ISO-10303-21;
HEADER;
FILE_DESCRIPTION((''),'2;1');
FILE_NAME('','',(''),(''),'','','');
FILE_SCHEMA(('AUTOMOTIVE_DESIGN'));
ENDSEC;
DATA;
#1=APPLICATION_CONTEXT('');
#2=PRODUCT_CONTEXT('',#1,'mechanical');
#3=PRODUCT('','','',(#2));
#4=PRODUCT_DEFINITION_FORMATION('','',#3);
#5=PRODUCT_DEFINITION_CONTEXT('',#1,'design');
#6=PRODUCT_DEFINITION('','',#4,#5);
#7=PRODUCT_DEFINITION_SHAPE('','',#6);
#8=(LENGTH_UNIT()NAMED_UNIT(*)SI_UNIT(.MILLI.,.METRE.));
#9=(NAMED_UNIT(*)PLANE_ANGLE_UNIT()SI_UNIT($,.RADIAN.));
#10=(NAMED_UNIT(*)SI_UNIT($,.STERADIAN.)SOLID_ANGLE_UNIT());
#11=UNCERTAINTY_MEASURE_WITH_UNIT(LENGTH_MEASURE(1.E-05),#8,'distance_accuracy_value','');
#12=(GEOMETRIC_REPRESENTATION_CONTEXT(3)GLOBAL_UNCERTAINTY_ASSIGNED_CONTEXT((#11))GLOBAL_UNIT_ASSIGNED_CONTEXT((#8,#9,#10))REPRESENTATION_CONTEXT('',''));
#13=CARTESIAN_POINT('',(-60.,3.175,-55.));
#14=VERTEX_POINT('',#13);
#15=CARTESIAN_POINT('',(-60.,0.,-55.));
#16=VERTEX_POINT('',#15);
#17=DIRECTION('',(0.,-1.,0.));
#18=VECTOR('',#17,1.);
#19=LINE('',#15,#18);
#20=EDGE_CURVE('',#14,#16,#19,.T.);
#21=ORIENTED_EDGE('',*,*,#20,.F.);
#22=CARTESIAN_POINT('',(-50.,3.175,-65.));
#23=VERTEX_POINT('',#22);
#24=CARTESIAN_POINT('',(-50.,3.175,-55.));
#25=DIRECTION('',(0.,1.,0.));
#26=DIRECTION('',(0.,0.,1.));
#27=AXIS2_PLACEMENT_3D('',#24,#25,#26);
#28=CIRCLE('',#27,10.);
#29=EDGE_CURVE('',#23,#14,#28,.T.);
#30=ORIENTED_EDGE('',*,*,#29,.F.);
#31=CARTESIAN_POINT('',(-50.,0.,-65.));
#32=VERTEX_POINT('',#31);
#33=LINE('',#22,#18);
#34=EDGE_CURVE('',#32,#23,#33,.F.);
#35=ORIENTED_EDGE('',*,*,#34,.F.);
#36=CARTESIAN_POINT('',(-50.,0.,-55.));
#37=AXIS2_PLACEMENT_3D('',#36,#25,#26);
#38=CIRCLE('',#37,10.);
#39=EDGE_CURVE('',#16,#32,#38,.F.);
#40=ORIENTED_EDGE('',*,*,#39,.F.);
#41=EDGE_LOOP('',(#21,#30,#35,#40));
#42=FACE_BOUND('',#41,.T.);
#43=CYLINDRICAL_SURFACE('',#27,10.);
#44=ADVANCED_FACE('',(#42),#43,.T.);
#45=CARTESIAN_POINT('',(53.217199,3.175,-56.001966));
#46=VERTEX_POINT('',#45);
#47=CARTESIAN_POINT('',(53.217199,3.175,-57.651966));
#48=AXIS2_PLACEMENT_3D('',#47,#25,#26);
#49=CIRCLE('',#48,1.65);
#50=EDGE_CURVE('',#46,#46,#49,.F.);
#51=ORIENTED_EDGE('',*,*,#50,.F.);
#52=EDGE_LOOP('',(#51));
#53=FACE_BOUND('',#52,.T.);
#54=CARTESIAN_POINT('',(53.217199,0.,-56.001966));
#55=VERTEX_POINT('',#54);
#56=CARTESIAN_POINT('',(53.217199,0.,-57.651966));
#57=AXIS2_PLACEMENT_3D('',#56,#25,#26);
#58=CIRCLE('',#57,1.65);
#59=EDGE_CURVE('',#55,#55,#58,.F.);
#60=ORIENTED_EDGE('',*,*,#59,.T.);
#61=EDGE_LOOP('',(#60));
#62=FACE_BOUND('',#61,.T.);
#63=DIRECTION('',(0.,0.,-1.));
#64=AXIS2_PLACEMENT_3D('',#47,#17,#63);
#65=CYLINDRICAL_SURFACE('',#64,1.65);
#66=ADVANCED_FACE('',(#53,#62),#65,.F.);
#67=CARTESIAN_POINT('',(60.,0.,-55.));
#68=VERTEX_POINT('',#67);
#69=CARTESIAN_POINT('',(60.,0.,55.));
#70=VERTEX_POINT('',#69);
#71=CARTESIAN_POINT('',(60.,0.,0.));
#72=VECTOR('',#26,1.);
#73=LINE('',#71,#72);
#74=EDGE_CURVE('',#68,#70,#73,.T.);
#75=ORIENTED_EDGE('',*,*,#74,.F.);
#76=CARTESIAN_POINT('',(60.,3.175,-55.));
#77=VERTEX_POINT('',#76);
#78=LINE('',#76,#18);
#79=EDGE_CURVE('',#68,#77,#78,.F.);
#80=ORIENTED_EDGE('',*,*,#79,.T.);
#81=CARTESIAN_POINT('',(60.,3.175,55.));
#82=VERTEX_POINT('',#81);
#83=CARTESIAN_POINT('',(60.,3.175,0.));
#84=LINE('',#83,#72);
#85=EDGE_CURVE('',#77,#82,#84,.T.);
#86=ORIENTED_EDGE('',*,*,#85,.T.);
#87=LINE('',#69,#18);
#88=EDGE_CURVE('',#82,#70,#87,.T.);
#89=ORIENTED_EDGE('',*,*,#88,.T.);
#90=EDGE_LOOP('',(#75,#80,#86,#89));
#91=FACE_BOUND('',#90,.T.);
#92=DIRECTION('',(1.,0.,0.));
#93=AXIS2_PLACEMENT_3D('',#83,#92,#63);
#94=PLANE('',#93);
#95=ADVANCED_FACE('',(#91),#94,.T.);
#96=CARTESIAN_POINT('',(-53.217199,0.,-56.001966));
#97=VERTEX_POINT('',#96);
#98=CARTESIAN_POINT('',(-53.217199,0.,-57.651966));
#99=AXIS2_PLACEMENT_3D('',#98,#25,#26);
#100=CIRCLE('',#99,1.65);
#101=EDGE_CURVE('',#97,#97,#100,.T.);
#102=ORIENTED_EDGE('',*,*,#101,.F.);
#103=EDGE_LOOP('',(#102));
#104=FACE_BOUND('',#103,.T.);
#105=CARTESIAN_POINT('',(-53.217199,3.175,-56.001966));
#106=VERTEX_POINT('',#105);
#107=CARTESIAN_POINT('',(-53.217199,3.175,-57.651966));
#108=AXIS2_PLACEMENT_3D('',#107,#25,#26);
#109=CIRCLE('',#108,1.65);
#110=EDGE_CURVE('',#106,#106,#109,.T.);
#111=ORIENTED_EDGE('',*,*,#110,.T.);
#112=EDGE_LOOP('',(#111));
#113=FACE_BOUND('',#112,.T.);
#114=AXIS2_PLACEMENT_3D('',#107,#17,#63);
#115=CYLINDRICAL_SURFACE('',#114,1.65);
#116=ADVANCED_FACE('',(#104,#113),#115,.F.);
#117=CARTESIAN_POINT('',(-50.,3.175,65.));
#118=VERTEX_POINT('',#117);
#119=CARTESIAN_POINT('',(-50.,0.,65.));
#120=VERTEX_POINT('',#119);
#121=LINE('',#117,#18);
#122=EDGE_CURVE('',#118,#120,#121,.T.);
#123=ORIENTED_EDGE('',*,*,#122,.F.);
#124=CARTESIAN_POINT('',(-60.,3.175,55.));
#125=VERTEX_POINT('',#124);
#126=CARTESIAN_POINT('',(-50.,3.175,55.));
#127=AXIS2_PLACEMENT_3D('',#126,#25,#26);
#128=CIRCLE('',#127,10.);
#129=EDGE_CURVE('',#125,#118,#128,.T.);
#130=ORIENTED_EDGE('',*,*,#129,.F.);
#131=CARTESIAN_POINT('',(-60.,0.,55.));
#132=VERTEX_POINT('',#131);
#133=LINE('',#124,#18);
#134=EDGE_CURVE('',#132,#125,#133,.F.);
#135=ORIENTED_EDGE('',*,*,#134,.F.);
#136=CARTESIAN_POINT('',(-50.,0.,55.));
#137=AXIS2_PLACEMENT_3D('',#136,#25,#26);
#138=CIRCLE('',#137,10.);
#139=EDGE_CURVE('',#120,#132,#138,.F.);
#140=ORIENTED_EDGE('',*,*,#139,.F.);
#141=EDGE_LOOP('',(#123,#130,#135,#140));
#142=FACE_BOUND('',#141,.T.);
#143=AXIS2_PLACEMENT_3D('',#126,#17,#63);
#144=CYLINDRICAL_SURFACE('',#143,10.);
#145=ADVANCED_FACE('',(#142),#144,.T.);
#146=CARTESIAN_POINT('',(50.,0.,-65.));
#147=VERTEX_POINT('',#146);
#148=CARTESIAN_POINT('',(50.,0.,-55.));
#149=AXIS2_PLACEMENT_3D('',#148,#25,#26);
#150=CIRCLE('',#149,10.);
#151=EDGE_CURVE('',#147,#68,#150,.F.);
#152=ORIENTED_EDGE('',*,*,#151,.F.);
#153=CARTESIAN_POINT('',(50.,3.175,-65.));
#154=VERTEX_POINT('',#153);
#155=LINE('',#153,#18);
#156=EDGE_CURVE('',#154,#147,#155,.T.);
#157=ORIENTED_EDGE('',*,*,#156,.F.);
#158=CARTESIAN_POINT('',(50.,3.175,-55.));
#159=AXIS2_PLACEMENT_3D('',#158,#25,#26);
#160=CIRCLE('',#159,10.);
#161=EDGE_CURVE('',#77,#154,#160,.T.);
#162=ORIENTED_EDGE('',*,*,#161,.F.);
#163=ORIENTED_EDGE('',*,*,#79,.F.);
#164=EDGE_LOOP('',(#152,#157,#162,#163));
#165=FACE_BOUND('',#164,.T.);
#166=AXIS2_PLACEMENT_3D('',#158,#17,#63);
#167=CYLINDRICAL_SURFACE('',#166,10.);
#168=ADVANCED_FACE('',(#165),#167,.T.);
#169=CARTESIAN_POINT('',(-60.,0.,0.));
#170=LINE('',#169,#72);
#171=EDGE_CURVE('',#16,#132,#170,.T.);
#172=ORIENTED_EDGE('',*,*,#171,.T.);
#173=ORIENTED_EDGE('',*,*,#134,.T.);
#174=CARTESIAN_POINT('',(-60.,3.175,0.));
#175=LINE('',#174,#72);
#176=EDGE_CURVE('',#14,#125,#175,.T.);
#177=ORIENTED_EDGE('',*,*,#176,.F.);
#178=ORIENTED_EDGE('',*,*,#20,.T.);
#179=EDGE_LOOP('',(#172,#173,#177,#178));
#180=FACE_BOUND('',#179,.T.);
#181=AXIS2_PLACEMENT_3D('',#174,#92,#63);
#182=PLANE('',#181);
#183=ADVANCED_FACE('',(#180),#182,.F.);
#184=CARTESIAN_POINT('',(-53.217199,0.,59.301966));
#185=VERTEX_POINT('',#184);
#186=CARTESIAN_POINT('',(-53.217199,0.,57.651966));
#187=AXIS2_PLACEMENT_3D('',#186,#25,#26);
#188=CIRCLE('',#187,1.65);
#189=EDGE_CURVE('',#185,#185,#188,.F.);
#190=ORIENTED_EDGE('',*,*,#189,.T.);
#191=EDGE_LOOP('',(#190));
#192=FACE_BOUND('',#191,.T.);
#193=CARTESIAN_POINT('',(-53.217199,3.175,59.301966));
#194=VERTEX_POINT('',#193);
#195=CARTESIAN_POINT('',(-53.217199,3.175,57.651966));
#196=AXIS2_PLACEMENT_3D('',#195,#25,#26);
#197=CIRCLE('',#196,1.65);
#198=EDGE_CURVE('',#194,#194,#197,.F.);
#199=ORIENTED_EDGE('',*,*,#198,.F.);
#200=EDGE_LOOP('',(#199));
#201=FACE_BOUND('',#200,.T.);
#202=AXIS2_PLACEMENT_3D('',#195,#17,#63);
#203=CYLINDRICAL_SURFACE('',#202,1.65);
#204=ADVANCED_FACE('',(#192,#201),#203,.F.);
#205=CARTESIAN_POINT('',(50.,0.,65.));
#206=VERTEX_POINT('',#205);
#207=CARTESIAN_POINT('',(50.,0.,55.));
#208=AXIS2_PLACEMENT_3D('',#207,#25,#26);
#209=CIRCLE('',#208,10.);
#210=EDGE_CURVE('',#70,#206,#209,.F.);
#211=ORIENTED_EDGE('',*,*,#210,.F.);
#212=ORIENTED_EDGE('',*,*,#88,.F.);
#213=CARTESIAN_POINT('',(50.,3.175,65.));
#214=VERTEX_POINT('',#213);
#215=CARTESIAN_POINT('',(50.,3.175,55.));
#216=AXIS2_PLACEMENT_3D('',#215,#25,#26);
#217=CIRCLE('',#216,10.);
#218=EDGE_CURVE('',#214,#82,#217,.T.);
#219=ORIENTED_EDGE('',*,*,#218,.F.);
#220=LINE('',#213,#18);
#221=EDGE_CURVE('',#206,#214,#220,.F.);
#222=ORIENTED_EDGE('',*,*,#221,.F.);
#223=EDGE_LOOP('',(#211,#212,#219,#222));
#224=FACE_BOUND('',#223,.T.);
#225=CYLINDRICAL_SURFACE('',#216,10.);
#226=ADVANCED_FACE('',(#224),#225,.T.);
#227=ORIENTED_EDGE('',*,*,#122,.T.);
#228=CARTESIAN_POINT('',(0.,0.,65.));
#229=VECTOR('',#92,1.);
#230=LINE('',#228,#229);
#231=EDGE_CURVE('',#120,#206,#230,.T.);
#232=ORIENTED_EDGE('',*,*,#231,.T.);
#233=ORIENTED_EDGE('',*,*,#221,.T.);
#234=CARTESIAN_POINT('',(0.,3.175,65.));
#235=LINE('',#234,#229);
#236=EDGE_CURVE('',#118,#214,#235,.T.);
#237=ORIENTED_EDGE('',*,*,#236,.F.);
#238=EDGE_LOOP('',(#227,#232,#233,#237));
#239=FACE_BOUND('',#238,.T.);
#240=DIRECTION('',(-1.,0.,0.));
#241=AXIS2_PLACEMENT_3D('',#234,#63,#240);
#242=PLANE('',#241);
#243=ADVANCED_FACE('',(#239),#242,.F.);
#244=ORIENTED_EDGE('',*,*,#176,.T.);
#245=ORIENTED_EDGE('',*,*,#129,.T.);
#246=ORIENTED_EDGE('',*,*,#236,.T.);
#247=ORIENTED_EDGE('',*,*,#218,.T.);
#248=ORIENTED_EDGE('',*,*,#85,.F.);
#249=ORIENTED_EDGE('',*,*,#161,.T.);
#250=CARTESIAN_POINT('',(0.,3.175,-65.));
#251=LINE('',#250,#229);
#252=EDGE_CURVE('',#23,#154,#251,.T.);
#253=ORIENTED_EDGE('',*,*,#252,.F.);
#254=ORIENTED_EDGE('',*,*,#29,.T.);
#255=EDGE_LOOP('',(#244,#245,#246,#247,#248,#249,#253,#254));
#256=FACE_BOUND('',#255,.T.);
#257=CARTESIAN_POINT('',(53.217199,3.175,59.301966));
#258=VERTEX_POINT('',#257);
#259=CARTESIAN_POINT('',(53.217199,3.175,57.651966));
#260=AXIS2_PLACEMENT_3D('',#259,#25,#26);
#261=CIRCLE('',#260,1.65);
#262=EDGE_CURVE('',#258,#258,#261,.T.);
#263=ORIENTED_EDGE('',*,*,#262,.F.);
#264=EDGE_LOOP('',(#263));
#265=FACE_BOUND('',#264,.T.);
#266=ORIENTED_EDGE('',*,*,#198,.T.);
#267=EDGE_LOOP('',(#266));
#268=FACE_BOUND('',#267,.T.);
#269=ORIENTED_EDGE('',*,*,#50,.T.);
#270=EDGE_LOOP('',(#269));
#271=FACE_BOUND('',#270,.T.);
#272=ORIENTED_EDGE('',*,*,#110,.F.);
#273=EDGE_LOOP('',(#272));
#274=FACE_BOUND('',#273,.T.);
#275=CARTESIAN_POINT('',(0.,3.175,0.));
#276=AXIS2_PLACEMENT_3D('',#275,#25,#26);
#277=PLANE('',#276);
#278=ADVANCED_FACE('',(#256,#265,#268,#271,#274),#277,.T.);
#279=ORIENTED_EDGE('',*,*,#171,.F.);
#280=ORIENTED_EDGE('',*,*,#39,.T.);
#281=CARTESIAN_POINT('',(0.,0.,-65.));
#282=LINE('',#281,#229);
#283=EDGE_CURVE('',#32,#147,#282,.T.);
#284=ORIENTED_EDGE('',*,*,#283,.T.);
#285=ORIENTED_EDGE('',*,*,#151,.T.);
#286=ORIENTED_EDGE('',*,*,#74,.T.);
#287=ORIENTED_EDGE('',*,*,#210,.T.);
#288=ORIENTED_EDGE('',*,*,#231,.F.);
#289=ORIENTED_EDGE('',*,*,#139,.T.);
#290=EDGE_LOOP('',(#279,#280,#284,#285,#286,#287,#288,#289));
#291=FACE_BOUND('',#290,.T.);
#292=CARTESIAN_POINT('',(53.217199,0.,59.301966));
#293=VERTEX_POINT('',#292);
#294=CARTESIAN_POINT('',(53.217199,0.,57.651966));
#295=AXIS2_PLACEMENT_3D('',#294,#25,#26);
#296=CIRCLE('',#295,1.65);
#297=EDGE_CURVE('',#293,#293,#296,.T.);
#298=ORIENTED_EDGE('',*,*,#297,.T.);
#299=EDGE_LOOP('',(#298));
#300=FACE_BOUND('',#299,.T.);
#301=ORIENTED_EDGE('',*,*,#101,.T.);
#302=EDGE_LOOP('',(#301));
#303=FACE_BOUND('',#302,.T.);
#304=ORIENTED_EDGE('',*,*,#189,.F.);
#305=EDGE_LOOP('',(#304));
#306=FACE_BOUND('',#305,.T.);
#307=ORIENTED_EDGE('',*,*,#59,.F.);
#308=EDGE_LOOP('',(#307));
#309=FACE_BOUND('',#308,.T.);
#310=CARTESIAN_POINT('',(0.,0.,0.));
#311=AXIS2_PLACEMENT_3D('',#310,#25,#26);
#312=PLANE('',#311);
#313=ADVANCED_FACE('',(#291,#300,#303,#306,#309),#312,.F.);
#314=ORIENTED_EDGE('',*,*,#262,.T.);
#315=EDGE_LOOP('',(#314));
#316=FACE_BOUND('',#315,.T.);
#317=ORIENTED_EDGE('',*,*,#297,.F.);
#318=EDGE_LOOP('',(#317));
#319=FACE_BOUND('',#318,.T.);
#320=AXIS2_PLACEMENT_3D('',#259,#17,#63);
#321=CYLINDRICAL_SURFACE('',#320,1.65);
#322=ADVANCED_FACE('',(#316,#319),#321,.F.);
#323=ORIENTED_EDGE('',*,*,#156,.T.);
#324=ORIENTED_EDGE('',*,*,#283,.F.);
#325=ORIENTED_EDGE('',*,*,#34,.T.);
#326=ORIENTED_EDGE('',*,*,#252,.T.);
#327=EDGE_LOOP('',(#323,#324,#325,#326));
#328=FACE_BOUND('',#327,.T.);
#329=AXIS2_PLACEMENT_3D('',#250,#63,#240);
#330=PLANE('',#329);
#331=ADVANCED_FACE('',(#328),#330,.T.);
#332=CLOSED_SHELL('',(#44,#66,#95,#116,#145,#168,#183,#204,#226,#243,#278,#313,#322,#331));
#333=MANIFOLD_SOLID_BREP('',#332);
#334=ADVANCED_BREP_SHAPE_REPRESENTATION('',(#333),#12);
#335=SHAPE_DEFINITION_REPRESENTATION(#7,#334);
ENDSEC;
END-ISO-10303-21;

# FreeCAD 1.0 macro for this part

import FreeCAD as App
import Part
import Sketcher

V = App.Vector
Q = App.Units.Quantity


def edges_at(feature, points):
    """Names of the edges that pass closest to the given points."""
    edges = feature.Shape.Edges
    near = lambda p: min(range(len(edges)), key=lambda i: edges[i].distToShape(Part.Vertex(*p))[0])
    return sorted({f"Edge{near(p) + 1}" for p in points})


def add_polygon(sketch, points):
    """Adds a closed chain of lines whose ends are joined by coincident constraints."""
    first, n = sketch.GeometryCount, len(points)
    for a, b in zip(points, points[1:] + points[:1]):
        sketch.addGeometry(Part.LineSegment(App.Vector(*a, 0), App.Vector(*b, 0)), False)
    for i in range(n):
        sketch.addConstraint(Sketcher.Constraint("Coincident", first + i, 2, first + (i + 1) % n, 1))

doc = App.newDocument("Part")
body = doc.addObject("PartDesign::Body", "Body")

sketch1 = doc.addObject("Sketcher::SketchObject", "Sketch")
body.addObject(sketch1)
sketch1.AttachmentSupport = (doc.XZ_Plane, [""])
sketch1.MapMode = "FlatFace"
add_polygon(sketch1, [(-60, -65), (-60, 65), (60, 65), (60, -65)])
sketch1.addGeometry(Part.Circle(V(-53.217199, 57.651966, 0), V(0, 0, 1), 1.65), False)
sketch1.addGeometry(Part.Circle(V(53.217199, 57.651966, 0), V(0, 0, 1), 1.65), False)
sketch1.addGeometry(Part.Circle(V(-53.217199, -57.651966, 0), V(0, 0, 1), 1.65), False)
sketch1.addGeometry(Part.Circle(V(53.217199, -57.651966, 0), V(0, 0, 1), 1.65), False)
sketch1.addConstraint([
    Sketcher.Constraint("Vertical", 0),
    Sketcher.Constraint("Horizontal", 1),
    Sketcher.Constraint("Vertical", 2),
    Sketcher.Constraint("Horizontal", 3),
    Sketcher.Constraint("Equal", 4, 5),
    Sketcher.Constraint("Equal", 5, 6),
    Sketcher.Constraint("Equal", 6, 7),
    Sketcher.Constraint("Symmetric", 5, 3, 6, 3, -1, 1),
    Sketcher.Constraint("Symmetric", 4, 3, 7, 3, -1, 1),
    Sketcher.Constraint("Symmetric", 0, 2, 2, 2, -1, 1),
    Sketcher.Constraint("Symmetric", 4, 3, 5, 3, -2),
    Sketcher.Constraint("Diameter", 4, Q("3.3 mm")),
    Sketcher.Constraint("DistanceX", 1, 1, 1, 2, Q("120 mm")),
    Sketcher.Constraint("DistanceY", 0, 1, 0, 2, Q("130 mm")),
    Sketcher.Constraint("DistanceX", 4, 3, -1, 1, Q("53.217199 mm")),
    Sketcher.Constraint("DistanceY", 6, 3, 4, 3, Q("115.303931 mm")),
])
pad1 = doc.addObject("PartDesign::Pad", "Pad")
body.addObject(pad1)
pad1.Profile = sketch1
pad1.Length = 3.175
pad1.Reversed = True
doc.recompute()

fillet = doc.addObject("PartDesign::Fillet", "Fillet")
body.addObject(fillet)
fillet.Base = (pad1, edges_at(pad1, [
    (60, 1.587, 65),
    (-60, 1.587, 65),
    (-60, 1.587, -65),
    (60, 1.587, -65),
]))
fillet.Radius = 10

doc.recompute()
